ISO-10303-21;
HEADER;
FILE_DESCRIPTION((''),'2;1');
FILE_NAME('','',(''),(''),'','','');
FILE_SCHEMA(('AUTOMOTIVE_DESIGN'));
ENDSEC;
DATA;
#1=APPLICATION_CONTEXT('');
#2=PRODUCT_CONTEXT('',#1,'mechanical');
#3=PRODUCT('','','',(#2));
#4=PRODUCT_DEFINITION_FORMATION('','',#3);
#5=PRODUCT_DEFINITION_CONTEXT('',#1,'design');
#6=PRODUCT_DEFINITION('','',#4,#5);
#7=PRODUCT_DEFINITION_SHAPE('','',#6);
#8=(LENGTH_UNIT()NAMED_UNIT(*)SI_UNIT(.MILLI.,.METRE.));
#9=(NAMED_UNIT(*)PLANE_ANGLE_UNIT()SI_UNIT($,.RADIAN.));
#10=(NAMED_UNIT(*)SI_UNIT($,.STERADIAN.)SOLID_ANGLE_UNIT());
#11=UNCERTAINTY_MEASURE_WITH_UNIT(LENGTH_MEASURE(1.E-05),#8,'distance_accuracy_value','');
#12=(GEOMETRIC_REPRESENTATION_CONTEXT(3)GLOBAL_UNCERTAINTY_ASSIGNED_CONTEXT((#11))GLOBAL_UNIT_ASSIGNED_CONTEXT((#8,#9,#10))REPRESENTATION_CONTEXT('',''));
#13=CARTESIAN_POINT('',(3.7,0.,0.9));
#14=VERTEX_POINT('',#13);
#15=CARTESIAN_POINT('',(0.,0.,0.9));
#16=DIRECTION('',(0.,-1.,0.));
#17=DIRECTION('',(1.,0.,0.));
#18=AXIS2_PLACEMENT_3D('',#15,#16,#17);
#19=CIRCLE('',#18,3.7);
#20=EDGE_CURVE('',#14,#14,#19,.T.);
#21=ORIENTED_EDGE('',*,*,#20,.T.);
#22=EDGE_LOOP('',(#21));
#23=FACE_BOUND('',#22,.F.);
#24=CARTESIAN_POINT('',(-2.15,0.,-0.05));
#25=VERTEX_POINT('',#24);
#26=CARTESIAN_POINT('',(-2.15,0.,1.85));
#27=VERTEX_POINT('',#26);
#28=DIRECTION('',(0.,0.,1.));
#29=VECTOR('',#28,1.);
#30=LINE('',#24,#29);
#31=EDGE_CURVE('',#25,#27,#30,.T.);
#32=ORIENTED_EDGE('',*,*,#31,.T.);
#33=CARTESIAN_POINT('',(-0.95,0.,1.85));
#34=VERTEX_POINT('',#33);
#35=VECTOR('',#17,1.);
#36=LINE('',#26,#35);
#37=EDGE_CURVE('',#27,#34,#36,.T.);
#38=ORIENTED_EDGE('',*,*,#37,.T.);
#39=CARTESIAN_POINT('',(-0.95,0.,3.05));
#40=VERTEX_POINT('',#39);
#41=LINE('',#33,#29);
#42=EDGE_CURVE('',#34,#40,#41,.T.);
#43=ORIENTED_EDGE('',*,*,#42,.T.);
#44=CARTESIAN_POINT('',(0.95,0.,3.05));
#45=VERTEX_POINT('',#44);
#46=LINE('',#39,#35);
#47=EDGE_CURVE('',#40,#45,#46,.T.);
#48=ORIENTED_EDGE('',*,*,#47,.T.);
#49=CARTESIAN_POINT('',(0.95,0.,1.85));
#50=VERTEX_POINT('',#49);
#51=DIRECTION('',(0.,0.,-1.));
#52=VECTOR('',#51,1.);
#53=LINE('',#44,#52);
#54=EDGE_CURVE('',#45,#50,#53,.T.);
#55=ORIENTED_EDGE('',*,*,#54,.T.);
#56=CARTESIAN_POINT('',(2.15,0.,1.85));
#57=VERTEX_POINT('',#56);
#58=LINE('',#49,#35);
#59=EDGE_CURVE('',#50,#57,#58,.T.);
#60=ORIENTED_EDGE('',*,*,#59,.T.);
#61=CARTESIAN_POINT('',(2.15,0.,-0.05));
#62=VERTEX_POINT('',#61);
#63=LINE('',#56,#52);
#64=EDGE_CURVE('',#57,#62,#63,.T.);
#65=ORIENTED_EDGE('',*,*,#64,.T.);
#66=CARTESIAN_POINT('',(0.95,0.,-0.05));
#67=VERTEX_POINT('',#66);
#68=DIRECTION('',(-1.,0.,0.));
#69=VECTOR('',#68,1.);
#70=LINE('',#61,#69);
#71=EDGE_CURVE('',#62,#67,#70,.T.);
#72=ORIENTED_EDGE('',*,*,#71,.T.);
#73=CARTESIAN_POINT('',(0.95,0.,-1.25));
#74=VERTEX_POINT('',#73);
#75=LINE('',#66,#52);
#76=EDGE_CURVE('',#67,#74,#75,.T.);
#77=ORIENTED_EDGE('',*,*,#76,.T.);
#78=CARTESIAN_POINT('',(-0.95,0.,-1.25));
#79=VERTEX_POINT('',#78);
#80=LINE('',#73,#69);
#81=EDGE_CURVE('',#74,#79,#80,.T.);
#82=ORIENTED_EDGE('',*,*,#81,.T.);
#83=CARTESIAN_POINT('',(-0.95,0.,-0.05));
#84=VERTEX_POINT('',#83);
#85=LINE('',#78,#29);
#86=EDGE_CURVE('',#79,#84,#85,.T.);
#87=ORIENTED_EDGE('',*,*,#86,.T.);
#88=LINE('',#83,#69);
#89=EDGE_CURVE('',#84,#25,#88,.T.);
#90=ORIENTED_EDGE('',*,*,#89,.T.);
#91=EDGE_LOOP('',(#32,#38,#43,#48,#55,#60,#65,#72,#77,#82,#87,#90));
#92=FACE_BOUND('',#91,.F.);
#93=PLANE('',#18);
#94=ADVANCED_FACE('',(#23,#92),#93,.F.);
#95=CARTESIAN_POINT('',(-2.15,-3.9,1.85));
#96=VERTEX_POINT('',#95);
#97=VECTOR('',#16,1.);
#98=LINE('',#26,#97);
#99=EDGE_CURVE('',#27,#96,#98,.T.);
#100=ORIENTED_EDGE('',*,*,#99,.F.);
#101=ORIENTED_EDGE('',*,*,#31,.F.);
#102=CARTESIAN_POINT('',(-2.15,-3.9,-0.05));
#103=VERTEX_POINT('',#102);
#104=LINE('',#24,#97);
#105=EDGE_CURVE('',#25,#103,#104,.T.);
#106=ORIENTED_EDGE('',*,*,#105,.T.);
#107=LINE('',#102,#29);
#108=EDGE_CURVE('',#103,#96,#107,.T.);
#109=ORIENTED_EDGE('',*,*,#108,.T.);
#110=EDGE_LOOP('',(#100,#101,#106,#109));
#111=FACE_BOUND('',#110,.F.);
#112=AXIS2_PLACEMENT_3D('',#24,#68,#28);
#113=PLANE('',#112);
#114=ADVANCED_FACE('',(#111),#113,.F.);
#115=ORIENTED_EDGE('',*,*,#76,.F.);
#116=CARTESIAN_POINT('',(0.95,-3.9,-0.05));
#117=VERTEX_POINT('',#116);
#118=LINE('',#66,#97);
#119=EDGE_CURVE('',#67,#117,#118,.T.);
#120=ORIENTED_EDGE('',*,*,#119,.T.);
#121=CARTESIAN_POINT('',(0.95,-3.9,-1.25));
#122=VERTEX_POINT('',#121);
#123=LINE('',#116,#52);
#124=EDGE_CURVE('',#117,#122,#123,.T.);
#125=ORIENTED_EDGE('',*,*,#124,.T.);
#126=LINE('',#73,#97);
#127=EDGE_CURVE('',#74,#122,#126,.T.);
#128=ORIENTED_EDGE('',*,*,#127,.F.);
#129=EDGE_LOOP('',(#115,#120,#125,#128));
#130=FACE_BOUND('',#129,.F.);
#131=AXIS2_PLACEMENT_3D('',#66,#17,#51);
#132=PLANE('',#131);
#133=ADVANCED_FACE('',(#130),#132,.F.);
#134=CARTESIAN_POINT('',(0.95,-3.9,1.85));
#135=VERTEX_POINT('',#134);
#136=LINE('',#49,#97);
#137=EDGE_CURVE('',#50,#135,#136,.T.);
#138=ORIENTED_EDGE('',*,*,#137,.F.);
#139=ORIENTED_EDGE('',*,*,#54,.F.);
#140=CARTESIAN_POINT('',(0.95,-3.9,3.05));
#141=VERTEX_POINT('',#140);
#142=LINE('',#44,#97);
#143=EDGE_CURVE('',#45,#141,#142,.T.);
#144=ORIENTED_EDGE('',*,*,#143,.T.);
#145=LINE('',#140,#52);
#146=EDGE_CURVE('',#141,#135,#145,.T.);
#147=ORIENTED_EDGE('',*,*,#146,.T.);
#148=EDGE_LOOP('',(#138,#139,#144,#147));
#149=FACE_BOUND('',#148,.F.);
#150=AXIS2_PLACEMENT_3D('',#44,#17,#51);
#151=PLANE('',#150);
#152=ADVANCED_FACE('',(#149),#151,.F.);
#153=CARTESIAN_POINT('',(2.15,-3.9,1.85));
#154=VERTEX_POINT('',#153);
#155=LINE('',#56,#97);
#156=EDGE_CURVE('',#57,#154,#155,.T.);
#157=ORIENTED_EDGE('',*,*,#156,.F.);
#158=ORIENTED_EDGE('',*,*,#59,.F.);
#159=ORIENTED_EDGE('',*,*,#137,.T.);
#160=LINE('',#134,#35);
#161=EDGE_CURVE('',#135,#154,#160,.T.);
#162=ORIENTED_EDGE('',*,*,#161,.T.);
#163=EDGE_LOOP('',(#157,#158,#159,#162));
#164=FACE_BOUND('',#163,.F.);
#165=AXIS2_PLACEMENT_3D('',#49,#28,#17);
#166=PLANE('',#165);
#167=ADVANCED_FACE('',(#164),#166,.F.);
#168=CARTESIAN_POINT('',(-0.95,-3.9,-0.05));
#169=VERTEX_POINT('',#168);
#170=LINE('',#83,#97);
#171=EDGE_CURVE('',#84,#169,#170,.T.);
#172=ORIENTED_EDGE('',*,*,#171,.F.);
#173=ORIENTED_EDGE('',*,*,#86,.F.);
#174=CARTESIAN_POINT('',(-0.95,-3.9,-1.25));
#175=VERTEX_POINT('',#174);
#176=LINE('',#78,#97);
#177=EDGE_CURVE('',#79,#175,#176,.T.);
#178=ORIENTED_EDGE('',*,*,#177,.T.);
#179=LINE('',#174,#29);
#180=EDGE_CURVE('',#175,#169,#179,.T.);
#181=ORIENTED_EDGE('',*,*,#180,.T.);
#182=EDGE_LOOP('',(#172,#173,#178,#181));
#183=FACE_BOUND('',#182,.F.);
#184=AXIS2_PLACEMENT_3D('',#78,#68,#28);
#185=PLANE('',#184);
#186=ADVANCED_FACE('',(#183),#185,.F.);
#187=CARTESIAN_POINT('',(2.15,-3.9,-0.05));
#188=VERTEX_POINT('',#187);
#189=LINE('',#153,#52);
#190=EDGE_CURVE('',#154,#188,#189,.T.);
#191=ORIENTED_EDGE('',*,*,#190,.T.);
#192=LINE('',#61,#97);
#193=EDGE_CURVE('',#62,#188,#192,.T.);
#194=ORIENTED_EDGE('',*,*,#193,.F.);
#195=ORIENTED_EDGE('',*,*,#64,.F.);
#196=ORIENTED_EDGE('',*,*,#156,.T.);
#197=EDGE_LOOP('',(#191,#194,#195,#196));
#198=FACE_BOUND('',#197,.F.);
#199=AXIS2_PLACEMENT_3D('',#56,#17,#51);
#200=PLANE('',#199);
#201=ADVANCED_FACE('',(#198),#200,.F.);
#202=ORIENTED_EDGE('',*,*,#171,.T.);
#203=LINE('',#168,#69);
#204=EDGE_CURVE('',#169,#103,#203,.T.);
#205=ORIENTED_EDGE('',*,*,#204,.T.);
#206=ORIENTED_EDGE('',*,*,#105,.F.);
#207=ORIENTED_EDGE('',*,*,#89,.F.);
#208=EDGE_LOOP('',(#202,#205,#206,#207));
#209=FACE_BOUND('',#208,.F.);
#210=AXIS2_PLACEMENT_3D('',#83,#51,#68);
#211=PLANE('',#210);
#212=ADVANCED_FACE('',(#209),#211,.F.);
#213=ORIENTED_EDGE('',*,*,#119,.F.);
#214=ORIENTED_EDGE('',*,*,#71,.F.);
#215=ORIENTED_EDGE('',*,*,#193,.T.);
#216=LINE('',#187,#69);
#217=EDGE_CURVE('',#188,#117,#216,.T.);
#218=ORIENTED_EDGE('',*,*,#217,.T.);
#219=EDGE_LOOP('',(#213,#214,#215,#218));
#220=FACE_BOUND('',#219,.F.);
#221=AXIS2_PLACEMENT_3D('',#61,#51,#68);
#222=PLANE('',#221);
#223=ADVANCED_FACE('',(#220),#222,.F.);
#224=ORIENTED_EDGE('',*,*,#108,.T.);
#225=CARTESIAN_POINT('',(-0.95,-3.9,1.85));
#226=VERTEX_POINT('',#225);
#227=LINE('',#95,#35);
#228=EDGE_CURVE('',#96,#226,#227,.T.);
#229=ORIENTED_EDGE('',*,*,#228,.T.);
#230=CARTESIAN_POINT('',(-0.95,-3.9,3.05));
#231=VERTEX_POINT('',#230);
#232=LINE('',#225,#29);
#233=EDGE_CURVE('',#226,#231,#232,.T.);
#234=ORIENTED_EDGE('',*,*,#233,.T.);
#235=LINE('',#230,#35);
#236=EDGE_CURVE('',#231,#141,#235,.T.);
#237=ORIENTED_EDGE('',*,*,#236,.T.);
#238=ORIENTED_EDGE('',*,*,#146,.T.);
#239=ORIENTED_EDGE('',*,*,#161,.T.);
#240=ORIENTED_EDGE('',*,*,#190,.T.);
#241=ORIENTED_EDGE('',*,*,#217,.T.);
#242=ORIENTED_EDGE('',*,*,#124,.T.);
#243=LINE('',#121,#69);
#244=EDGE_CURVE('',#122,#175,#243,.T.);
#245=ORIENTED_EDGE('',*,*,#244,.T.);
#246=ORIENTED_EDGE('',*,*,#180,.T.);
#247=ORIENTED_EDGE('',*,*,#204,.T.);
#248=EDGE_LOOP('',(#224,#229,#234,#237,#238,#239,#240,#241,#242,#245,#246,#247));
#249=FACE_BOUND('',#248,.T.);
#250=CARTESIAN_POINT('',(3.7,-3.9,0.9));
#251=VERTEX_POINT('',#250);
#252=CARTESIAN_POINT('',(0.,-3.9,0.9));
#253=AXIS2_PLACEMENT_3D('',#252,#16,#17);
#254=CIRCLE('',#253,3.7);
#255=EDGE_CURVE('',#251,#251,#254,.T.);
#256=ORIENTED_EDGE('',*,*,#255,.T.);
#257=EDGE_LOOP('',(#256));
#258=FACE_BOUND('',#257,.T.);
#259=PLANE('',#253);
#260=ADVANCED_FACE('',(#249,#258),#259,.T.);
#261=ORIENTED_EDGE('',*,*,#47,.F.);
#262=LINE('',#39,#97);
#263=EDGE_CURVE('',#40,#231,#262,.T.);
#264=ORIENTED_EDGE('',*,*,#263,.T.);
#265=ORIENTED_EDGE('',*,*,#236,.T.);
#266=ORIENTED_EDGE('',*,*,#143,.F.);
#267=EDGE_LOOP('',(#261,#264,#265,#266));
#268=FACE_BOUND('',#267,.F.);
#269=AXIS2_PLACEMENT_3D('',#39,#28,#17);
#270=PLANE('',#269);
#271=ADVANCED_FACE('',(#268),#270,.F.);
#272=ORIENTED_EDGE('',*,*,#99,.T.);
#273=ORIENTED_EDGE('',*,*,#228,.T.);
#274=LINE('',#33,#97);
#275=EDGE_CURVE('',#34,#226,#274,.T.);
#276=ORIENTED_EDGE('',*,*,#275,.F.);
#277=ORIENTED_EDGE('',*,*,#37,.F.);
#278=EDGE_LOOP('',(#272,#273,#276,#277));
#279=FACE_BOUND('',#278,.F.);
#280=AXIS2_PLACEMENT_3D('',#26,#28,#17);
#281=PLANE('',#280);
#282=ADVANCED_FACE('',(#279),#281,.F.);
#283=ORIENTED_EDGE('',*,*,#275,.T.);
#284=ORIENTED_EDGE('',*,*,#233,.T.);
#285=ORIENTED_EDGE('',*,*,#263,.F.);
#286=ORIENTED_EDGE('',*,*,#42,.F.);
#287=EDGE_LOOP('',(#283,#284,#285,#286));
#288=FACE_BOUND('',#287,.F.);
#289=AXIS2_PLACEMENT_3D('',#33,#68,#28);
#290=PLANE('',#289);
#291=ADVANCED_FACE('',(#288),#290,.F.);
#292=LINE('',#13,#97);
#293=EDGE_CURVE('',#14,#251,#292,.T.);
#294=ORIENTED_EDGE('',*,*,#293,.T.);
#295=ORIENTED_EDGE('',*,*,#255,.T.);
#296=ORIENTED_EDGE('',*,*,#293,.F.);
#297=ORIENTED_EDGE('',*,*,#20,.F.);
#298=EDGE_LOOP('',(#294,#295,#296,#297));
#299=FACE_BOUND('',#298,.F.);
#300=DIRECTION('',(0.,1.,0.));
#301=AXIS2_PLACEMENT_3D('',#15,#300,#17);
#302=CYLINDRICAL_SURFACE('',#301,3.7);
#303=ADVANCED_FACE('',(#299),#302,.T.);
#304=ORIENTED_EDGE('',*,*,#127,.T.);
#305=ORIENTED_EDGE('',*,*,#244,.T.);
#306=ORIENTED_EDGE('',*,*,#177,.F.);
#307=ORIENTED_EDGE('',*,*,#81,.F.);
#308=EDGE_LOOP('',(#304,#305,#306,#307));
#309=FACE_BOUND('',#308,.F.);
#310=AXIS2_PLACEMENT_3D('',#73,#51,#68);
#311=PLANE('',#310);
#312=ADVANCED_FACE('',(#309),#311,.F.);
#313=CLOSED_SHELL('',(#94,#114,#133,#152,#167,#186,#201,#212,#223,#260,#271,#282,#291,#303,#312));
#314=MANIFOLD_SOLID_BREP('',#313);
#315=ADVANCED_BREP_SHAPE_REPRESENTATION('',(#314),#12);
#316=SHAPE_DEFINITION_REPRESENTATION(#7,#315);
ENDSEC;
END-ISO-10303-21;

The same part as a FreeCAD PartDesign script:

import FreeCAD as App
import Part
import Sketcher
from FreeCAD import Vector
Q = App.Units.Quantity

doc = App.newDocument("Part")
params = doc.addObject("Spreadsheet::Sheet", "Params")
for row, (alias, value) in enumerate([
    ("sketch1_diameter", "7.4 mm"),
    ("sketch1_width", "1.9 mm"),
    ("sketch1_width2", "1.2 mm"),
    ("pad1_length", "3.9 mm"),
], start=1):
    params.set(f"A{row}", alias)
    params.set(f"B{row}", "=" + value)
    params.setAlias(f"B{row}", alias)

body = doc.addObject("PartDesign::Body", "Body")

# Sketch on XZ plane
sketch1 = body.newObject("Sketcher::SketchObject", "Sketch")
sketch1.AttachmentSupport = (doc.getObject("XZ_Plane"), [""])
sketch1.MapMode = "FlatFace"
sketch1.addGeometry([
    Part.Circle(Vector(0, 0.9, 0), Vector(0, 0, 1), 3.7),  # 0
    Part.LineSegment(Vector(-0.9, 1.9, 0), Vector(-0.9, 3, 0)),  # 1
    Part.LineSegment(Vector(-0.9, 3, 0), Vector(0.9, 3, 0)),  # 2
    Part.LineSegment(Vector(0.9, 3, 0), Vector(0.9, 1.9, 0)),  # 3
    Part.LineSegment(Vector(0.9, 1.9, 0), Vector(2.1, 1.9, 0)),  # 4
    Part.LineSegment(Vector(2.1, 1.9, 0), Vector(2.1, -0.1, 0)),  # 5
    Part.LineSegment(Vector(2.1, -0.1, 0), Vector(0.9, -0.1, 0)),  # 6
    Part.LineSegment(Vector(0.9, -0.1, 0), Vector(0.9, -1.2, 0)),  # 7
    Part.LineSegment(Vector(0.9, -1.2, 0), Vector(-0.9, -1.2, 0)),  # 8
    Part.LineSegment(Vector(-0.9, -1.2, 0), Vector(-0.9, -0.1, 0)),  # 9
    Part.LineSegment(Vector(-0.9, -0.1, 0), Vector(-2.1, -0.1, 0)),  # 10
    Part.LineSegment(Vector(-2.1, -0.1, 0), Vector(-2.1, 1.9, 0)),  # 11
    Part.LineSegment(Vector(-2.1, 1.9, 0), Vector(-0.9, 1.9, 0)),  # 12
], False)
sketch1.addConstraint([
    Sketcher.Constraint("Coincident", 1, 2, 2, 1),
    Sketcher.Constraint("Coincident", 2, 2, 3, 1),
    Sketcher.Constraint("Coincident", 3, 2, 4, 1),
    Sketcher.Constraint("Coincident", 4, 2, 5, 1),
    Sketcher.Constraint("Coincident", 5, 2, 6, 1),
    Sketcher.Constraint("Coincident", 6, 2, 7, 1),
    Sketcher.Constraint("Coincident", 7, 2, 8, 1),
    Sketcher.Constraint("Coincident", 8, 2, 9, 1),
    Sketcher.Constraint("Coincident", 9, 2, 10, 1),
    Sketcher.Constraint("Coincident", 10, 2, 11, 1),
    Sketcher.Constraint("Coincident", 11, 2, 12, 1),
    Sketcher.Constraint("Coincident", 12, 2, 1, 1),
    Sketcher.Constraint("Vertical", 1),
    Sketcher.Constraint("Horizontal", 2),
    Sketcher.Constraint("Vertical", 3),
    Sketcher.Constraint("Horizontal", 4),
    Sketcher.Constraint("Vertical", 5),
    Sketcher.Constraint("Horizontal", 6),
    Sketcher.Constraint("Vertical", 7),
    Sketcher.Constraint("Horizontal", 8),
    Sketcher.Constraint("Vertical", 9),
    Sketcher.Constraint("Horizontal", 10),
    Sketcher.Constraint("Vertical", 11),
    Sketcher.Constraint("Horizontal", 12),
    Sketcher.Constraint("Symmetric", 6, 2, 9, 2, -2),
    Sketcher.Constraint("Symmetric", 4, 2, 11, 2, -2),
    Sketcher.Constraint("PointOnObject", 0, 3, -2),
    Sketcher.Constraint("Vertical", 3, 2, 6, 2),
    Sketcher.Constraint("Vertical", 1, 2, 8, 2),
    Sketcher.Constraint("Equal", 12, 1),
    Sketcher.Constraint("Equal", 8, 5),
    Sketcher.Constraint("Equal", 3, 7),
    Sketcher.Constraint("Diameter", 0, Q("7.4 mm")),
    Sketcher.Constraint("DistanceX", 2, 1, 2, 2, Q("1.9 mm")),
    Sketcher.Constraint("DistanceX", 4, 1, 4, 2, Q("1.2 mm")),
    Sketcher.Constraint("DistanceY", -1, 1, 0, 3, Q("0.9 mm")),
    Sketcher.Constraint("DistanceY", -1, 1, 1, 2, Q("3.05 mm")),
])
sketch1.setExpression("Constraints[32]", "Params.sketch1_diameter")
sketch1.setExpression("Constraints[33]", "Params.sketch1_width")
sketch1.setExpression("Constraints[34]", "Params.sketch1_width2")
pad1 = body.newObject("PartDesign::Pad", "Pad")
pad1.Profile = sketch1
pad1.setExpression("Length", "Params.pad1_length")

doc.recompute()
